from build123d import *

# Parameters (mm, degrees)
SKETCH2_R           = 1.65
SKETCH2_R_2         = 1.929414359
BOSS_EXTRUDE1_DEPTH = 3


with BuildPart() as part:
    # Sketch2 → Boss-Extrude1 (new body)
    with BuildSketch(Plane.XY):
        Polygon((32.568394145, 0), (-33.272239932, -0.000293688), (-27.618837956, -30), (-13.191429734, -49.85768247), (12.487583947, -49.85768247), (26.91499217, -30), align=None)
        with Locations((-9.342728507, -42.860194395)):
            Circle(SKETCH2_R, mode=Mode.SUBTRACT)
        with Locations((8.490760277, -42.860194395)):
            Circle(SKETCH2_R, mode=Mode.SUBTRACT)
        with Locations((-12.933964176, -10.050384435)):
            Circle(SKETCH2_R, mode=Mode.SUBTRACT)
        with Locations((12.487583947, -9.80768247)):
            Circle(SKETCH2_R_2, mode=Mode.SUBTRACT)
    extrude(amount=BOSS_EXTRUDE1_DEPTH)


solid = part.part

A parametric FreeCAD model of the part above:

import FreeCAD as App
import Part
import Sketcher

V = App.Vector

doc = App.newDocument("Part")
params = doc.addObject("Spreadsheet::Sheet", "Params")
for row, (alias, value) in enumerate([
    ("sketch1_diameter", "3.3 mm"),
    ("pad1_length", "3 mm"),
], start=1):
    params.set(f"A{row}", alias)
    params.set(f"B{row}", "=" + value)
    params.setAlias(f"B{row}", alias)

body = doc.addObject("PartDesign::Body", "Body")

sketch1 = doc.addObject("Sketcher::SketchObject", "Sketch")
body.addObject(sketch1)
sketch1.AttachmentSupport = (doc.XY_Plane, [""])
sketch1.MapMode = "FlatFace"
sketch1.addGeometry([
    Part.LineSegment(V(32.6, 0, 0), V(-33.3, 0, 0)),
    Part.LineSegment(V(-33.3, 0, 0), V(-27.6, -30, 0)),
    Part.LineSegment(V(-27.6, -30, 0), V(-13.2, -49.9, 0)),
    Part.LineSegment(V(-13.2, -49.9, 0), V(12.5, -49.9, 0)),
    Part.LineSegment(V(12.5, -49.9, 0), V(26.9, -30, 0)),
    Part.LineSegment(V(26.9, -30, 0), V(32.6, 0, 0)),
    Part.Circle(V(-9.3, -42.9, 0), V(0, 0, 1), 1.6),
    Part.Circle(V(8.5, -42.9, 0), V(0, 0, 1), 1.6),
    Part.Circle(V(-12.9, -10.1, 0), V(0, 0, 1), 1.6),
    Part.Circle(V(12.5, -9.8, 0), V(0, 0, 1), 1.9),
], False)
sketch1.addConstraint([
    Sketcher.Constraint("Coincident", 0, 2, 1, 1),
    Sketcher.Constraint("Coincident", 1, 2, 2, 1),
    Sketcher.Constraint("Coincident", 2, 2, 3, 1),
    Sketcher.Constraint("Coincident", 3, 2, 4, 1),
    Sketcher.Constraint("Coincident", 4, 2, 5, 1),
    Sketcher.Constraint("Coincident", 5, 2, 0, 1),
    Sketcher.Constraint("Horizontal", 3),
    Sketcher.Constraint("Equal", 6, 7),
    Sketcher.Constraint("Equal", 7, 8),
    Sketcher.Constraint("PointOnObject", 5, 2, -1),
    Sketcher.Constraint("Horizontal", 6, 3, 7, 3),
    Sketcher.Constraint("Horizontal", 1, 2, 4, 2),
    Sketcher.Constraint("Vertical", 9, 3, 3, 2),
    Sketcher.Constraint("Equal", 2, 4),
    Sketcher.Constraint("Diameter", 6, 3.3),
    Sketcher.Constraint("DistanceY", 1, 2, -1, 1, 30.0),
    Sketcher.Constraint("Diameter", 9, 3.858829),
    Sketcher.Constraint("DistanceY", 2, 2, 9, 3, 40.05),
    Sketcher.Constraint("DistanceX", 0, 2, 7, 3, 41.763),
    Sketcher.Constraint("DistanceY", 8, 3, 9, 3, 0.242702),
    Sketcher.Constraint("DistanceY", 6, 3, 0, 2, 42.859901),
    Sketcher.Constraint("DistanceX", 0, 2, 1, 2, 5.653402),
    Sketcher.Constraint("DistanceX", 2, 2, 6, 3, 3.848701),
    Sketcher.Constraint("DistanceX", 4, 2, 5, 2, 5.653402),
    Sketcher.Constraint("Distance", 2, 24.54542),
    Sketcher.Constraint("DistanceX", 3, 1, 3, 2, 25.679014),
    Sketcher.Constraint("DistanceX", 6, 3, -1, 1, 9.342729),
    Sketcher.Constraint("DistanceX", -1, 1, 7, 3, 8.49076),
    Sketcher.Constraint("DistanceY", 6, 3, 8, 3, 32.80981),
    Sketcher.Constraint("DistanceX", 8, 3, 9, 3, 25.421548),
])
sketch1.setExpression("Constraints[14]", "Params.sketch1_diameter")
pad1 = doc.addObject("PartDesign::Pad", "Pad")
body.addObject(pad1)
pad1.Profile = sketch1
pad1.setExpression("Length", "Params.pad1_length")

doc.recompute()
